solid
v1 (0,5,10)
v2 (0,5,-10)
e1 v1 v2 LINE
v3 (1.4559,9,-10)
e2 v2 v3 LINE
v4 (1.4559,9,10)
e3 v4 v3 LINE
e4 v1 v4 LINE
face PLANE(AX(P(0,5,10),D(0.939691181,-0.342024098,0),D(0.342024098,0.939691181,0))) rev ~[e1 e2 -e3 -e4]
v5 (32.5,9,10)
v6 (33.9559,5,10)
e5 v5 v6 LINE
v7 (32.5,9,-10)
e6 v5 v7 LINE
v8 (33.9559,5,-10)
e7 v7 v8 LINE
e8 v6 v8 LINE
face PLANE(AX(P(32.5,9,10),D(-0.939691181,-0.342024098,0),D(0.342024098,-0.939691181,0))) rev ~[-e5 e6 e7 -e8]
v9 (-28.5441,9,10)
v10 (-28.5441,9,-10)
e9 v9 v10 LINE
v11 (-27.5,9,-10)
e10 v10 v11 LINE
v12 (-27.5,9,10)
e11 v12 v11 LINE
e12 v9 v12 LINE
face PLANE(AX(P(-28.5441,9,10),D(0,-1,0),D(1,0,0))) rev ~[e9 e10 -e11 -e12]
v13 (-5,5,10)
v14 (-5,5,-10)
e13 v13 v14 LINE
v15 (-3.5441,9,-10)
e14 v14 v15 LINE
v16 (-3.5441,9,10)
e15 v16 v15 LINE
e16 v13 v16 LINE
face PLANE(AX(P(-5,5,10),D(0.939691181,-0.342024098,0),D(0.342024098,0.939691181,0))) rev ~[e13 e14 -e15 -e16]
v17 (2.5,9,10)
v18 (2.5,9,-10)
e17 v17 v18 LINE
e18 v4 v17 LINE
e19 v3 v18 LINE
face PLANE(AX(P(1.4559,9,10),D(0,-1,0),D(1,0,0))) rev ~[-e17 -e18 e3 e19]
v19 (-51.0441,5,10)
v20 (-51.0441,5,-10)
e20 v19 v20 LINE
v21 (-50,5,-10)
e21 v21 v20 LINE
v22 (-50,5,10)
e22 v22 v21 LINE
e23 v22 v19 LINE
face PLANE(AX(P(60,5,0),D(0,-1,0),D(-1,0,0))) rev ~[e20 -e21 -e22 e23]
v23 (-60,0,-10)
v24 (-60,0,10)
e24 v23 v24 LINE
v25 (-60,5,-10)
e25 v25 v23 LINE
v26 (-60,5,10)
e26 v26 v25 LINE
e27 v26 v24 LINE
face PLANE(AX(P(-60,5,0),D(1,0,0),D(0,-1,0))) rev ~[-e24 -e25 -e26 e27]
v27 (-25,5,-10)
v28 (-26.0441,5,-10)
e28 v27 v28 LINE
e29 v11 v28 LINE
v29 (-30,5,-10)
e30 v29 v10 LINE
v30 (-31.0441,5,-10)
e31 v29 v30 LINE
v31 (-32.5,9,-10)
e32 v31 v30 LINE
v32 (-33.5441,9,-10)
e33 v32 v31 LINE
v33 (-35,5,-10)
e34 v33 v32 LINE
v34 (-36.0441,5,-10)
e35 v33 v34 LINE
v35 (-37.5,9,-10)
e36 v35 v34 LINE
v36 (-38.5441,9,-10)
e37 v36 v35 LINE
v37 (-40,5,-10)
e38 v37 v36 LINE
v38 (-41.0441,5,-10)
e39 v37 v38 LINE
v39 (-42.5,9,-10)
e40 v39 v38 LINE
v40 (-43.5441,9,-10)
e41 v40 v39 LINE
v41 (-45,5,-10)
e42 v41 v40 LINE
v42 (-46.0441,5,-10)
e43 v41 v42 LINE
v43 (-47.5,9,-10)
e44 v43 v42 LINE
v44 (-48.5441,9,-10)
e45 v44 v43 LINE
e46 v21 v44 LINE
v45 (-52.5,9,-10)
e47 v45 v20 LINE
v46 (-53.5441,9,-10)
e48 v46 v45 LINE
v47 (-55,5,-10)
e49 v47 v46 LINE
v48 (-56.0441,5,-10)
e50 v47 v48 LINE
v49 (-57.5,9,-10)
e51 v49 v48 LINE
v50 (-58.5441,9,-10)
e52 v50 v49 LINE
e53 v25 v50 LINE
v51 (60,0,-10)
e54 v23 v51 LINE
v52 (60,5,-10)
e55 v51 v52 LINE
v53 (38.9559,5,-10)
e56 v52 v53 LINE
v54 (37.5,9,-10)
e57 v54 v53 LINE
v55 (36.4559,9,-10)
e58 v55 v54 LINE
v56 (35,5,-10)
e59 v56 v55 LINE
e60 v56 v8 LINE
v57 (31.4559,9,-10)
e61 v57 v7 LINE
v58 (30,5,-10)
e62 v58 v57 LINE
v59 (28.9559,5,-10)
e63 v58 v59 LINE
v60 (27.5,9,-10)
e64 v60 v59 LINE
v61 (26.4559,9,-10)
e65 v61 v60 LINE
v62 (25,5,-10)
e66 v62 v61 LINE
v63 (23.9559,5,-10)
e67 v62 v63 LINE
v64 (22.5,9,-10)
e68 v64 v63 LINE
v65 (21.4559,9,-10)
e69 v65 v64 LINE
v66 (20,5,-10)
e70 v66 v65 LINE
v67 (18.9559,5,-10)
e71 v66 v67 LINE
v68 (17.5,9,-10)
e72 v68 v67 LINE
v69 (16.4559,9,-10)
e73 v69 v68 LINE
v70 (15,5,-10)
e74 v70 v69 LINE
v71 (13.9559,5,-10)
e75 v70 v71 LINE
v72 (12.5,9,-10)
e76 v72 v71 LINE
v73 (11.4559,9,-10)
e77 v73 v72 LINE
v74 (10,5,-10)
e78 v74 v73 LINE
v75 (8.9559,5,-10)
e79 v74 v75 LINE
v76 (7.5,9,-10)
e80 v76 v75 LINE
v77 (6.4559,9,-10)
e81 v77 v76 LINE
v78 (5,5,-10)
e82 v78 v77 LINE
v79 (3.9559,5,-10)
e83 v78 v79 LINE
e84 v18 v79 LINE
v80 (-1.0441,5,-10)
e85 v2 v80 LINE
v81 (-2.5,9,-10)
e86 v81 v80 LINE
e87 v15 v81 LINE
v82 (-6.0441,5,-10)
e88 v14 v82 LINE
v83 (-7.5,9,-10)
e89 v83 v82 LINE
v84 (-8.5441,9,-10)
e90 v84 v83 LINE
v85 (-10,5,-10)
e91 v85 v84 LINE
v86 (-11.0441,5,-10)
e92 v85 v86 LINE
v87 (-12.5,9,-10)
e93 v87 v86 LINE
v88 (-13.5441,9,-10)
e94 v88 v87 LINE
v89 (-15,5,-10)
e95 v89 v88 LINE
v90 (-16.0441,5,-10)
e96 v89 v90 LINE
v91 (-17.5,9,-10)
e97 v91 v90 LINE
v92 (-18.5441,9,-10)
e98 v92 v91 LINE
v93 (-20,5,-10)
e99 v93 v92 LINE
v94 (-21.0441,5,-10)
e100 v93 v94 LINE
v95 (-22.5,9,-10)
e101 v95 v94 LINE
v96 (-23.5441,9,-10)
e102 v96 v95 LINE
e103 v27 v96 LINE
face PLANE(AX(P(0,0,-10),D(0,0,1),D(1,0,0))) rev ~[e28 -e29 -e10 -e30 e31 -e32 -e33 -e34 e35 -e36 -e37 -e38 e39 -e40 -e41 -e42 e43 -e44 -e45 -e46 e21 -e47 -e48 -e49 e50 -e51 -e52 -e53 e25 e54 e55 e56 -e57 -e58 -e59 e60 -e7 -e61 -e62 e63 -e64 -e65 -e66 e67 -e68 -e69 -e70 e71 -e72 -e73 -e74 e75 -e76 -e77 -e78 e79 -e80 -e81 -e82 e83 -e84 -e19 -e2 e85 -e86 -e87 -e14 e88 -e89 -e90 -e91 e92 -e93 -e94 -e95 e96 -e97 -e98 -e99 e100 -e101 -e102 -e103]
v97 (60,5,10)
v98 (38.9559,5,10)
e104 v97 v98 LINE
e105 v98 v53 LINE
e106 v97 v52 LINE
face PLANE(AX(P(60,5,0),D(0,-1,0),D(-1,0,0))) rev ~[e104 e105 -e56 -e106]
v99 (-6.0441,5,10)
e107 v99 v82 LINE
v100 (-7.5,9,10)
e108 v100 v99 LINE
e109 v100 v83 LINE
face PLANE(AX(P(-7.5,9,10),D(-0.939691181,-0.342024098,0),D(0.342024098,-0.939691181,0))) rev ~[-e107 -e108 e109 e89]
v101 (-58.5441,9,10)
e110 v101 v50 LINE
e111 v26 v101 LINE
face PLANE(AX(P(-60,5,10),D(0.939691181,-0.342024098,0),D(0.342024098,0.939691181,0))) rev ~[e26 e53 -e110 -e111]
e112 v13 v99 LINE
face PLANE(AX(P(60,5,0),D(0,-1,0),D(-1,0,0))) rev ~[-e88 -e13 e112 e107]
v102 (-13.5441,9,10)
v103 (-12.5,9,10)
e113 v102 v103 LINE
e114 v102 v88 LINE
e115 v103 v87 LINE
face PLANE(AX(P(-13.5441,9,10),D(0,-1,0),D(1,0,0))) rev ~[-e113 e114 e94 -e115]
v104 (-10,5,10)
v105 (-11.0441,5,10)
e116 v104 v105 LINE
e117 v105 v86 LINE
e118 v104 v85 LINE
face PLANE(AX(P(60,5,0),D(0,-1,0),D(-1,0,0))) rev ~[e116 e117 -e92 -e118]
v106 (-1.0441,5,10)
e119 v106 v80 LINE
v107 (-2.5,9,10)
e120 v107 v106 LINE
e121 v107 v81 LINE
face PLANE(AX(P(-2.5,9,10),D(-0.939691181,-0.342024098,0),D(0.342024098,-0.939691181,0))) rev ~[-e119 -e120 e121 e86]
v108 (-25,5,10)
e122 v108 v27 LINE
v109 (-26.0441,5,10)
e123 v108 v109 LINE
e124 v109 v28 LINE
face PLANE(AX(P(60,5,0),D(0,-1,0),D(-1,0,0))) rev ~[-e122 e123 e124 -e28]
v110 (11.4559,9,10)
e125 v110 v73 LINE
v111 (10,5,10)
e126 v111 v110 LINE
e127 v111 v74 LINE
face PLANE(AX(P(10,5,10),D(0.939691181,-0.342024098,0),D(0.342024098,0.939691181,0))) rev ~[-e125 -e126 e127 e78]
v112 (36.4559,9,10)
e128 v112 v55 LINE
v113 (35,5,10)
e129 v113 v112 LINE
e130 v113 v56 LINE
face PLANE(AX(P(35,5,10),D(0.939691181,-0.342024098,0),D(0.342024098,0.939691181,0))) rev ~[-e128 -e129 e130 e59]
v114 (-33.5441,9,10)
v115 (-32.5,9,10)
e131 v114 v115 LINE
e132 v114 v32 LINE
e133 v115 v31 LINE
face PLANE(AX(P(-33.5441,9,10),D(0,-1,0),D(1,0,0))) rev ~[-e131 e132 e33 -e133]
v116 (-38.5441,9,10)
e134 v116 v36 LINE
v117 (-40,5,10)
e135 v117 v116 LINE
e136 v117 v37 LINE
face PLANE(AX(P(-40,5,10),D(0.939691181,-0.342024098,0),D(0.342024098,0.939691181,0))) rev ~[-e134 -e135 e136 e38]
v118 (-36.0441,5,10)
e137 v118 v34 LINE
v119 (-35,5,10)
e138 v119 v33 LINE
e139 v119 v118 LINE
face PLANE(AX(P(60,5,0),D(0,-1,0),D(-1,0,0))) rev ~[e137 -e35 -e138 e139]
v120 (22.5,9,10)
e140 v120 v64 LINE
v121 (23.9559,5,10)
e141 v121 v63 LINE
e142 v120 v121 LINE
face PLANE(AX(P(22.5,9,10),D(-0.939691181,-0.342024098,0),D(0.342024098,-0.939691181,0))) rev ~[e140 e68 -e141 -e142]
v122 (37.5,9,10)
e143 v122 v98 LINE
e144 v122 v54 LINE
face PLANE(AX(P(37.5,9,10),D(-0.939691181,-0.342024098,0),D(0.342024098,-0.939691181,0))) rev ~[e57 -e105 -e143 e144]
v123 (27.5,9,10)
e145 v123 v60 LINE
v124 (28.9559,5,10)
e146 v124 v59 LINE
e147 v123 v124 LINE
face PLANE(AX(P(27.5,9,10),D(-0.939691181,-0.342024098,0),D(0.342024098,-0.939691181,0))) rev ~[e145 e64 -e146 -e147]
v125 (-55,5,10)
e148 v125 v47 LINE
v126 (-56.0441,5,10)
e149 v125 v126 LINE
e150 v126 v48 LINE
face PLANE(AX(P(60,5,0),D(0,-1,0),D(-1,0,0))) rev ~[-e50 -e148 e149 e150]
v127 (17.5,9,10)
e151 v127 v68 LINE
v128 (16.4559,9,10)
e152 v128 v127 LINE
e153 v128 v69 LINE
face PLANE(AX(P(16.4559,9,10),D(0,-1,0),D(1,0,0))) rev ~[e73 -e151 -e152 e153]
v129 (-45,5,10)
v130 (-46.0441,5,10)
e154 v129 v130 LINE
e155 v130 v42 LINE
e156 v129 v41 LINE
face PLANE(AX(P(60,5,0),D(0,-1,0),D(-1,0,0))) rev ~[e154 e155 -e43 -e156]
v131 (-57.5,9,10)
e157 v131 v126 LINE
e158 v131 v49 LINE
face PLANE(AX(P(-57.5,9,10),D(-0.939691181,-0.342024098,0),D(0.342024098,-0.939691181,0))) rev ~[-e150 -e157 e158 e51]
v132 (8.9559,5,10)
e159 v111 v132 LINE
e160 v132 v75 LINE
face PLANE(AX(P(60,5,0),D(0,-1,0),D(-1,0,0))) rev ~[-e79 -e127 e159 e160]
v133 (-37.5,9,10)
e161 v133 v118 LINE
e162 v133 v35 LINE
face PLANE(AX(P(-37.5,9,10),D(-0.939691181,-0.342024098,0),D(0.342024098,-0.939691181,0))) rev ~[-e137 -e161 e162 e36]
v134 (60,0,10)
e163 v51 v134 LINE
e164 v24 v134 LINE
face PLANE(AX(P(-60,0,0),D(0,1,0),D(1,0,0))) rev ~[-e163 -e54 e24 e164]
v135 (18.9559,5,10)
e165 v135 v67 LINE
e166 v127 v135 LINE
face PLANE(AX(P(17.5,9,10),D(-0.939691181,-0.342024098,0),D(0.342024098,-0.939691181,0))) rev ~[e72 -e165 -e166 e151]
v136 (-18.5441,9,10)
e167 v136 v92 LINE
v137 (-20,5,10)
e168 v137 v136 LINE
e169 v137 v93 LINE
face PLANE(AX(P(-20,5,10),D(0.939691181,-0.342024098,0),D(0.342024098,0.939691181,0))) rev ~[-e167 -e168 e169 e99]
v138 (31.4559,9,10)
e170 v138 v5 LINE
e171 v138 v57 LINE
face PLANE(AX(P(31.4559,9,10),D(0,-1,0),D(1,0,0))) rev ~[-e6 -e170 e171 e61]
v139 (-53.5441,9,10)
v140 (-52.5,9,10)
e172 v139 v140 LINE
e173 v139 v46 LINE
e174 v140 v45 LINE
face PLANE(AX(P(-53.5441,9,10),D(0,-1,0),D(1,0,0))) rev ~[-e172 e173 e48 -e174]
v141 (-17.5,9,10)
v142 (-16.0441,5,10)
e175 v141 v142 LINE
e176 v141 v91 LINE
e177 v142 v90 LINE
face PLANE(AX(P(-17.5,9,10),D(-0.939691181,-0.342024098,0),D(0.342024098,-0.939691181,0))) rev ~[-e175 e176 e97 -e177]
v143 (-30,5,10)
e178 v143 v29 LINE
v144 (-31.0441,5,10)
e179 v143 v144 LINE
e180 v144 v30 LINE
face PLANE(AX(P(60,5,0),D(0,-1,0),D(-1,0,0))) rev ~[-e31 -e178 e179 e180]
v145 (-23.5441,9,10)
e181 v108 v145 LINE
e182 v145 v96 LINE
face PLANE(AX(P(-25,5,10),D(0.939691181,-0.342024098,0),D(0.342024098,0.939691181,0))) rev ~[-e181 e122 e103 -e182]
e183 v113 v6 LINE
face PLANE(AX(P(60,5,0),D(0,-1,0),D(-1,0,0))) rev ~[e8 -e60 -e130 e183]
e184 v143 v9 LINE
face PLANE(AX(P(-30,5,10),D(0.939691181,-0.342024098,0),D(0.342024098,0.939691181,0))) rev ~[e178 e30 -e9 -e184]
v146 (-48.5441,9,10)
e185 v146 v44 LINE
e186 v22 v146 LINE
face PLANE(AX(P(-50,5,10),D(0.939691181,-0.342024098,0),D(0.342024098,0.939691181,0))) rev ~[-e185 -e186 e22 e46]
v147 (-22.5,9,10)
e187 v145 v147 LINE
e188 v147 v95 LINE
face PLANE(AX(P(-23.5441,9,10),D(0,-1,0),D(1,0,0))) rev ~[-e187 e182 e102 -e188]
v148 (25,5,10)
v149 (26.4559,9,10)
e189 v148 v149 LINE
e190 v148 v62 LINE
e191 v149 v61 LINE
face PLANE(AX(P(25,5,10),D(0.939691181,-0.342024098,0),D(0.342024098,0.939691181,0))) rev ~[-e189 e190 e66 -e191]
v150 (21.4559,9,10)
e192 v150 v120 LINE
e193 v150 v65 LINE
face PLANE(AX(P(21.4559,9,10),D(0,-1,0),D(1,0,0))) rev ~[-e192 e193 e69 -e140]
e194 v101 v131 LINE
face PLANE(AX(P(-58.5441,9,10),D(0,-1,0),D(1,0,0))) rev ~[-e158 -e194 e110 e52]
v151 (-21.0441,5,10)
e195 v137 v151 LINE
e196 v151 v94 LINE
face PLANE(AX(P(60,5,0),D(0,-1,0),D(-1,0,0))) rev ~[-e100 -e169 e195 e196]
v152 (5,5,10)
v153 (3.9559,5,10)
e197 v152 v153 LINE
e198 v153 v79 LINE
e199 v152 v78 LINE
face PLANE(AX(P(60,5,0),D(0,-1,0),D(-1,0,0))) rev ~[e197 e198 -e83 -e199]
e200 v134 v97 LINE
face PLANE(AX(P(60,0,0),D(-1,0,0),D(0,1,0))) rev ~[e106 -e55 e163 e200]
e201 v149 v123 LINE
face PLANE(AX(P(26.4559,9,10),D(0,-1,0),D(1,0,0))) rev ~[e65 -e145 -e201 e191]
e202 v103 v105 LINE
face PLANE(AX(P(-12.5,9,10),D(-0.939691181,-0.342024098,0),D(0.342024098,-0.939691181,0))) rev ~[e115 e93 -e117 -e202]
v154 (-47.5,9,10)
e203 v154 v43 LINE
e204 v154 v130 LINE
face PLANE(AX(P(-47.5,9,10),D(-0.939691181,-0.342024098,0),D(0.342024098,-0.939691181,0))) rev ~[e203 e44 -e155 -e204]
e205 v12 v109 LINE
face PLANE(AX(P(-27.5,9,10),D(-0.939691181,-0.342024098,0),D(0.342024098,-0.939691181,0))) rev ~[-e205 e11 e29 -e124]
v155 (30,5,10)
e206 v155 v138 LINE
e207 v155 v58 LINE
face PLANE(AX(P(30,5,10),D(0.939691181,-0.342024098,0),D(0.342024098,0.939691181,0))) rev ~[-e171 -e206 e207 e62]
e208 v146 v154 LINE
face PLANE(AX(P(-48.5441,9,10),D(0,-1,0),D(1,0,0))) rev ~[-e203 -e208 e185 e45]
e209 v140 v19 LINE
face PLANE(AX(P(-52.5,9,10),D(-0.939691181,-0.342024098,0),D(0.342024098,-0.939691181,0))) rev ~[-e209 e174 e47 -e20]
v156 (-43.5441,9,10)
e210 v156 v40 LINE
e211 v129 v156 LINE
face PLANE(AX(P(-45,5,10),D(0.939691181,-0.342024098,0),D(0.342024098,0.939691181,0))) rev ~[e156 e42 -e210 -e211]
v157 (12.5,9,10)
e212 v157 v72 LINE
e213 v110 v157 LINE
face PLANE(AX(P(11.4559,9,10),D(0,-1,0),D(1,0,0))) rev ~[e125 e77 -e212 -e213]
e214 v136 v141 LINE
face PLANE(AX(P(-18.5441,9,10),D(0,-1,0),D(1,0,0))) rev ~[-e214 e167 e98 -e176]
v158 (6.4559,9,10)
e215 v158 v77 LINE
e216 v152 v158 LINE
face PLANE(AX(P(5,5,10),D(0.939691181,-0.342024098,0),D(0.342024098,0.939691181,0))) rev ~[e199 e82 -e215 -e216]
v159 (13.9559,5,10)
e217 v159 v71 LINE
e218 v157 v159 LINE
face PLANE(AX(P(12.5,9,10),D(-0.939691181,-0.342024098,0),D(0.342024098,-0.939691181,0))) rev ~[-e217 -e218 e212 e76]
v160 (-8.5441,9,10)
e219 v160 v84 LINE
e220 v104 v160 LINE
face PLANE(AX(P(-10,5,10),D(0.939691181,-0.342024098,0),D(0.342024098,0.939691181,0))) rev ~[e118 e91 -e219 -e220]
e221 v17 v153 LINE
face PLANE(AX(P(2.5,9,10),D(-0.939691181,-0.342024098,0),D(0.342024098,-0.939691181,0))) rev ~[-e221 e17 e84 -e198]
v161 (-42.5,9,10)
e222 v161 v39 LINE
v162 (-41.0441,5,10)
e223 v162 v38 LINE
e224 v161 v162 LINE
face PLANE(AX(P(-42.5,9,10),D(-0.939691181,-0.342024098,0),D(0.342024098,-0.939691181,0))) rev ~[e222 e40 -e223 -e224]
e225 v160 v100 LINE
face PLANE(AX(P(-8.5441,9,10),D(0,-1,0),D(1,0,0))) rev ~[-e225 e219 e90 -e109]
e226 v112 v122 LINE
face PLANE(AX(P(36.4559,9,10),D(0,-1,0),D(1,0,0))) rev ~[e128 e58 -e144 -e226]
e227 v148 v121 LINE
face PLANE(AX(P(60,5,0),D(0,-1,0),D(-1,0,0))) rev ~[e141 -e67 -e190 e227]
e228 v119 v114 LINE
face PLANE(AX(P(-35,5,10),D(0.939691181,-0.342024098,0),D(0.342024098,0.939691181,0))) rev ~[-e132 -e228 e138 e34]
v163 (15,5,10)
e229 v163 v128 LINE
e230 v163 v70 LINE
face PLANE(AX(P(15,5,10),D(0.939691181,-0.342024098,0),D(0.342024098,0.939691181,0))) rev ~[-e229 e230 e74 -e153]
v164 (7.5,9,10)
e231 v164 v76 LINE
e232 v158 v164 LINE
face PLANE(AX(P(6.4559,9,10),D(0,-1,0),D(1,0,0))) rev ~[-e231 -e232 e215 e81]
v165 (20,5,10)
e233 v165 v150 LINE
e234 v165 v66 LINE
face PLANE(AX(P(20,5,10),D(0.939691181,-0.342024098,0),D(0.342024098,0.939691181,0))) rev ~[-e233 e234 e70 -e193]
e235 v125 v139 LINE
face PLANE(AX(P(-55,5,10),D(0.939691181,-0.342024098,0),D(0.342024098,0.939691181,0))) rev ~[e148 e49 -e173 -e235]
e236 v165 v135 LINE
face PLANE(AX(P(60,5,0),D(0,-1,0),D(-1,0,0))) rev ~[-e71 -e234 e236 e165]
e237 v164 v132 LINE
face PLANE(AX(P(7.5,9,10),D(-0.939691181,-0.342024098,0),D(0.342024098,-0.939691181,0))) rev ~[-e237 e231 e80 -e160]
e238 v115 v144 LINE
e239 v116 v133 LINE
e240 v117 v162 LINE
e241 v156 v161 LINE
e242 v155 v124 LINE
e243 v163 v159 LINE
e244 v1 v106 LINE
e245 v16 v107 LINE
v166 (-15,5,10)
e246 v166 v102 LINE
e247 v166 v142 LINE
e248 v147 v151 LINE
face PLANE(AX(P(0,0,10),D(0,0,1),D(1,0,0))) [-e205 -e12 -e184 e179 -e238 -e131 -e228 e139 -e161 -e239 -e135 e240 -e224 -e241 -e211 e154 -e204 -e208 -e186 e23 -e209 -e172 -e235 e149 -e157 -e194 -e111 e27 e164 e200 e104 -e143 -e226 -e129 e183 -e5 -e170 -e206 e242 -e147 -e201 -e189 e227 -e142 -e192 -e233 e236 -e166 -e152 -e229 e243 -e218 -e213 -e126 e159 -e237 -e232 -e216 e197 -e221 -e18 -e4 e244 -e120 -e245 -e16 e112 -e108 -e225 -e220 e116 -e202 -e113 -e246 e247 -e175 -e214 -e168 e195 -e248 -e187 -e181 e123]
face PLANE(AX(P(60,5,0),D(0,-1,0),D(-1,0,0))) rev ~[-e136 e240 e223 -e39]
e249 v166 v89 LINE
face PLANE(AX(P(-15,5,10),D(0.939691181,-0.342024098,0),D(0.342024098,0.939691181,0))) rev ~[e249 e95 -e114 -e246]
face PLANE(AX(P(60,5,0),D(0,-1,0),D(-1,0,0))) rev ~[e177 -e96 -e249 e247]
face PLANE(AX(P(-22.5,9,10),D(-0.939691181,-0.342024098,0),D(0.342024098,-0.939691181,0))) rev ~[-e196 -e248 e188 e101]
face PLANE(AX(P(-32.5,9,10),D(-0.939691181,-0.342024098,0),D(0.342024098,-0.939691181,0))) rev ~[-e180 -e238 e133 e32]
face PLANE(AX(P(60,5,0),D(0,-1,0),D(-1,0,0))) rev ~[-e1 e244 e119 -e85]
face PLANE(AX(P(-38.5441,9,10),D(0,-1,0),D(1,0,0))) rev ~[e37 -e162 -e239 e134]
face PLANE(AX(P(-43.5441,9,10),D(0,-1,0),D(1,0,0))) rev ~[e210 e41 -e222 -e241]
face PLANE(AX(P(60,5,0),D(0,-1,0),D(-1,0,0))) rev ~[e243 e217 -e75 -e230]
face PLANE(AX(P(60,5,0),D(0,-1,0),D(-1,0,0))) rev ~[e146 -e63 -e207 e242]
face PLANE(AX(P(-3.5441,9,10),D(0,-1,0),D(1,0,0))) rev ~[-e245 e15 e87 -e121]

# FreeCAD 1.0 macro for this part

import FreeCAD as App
import Part
import Sketcher

V = App.Vector
Q = App.Units.Quantity

doc = App.newDocument("Part")
body = doc.addObject("PartDesign::Body", "Body")

# Sketch on XY plane
sketch1 = body.newObject("Sketcher::SketchObject", "Sketch")
sketch1.AttachmentSupport = (doc.getObject("XY_Plane"), [""])
sketch1.MapMode = "FlatFace"
sketch1.addGeometry(Part.LineSegment(V(-60, 5, 0), V(-60, 0, 0)), False)
sketch1.addGeometry(Part.LineSegment(V(-60, 0, 0), V(60, 0, 0)), False)
sketch1.addGeometry(Part.LineSegment(V(60, 0, 0), V(60, 5, 0)), False)
sketch1.addGeometry(Part.LineSegment(V(60, 5, 0), V(-60, 5, 0)), False)
sketch1.addConstraint(Sketcher.Constraint("Coincident", 0, 2, 1, 1))
sketch1.addConstraint(Sketcher.Constraint("Coincident", 1, 2, 2, 1))
sketch1.addConstraint(Sketcher.Constraint("Coincident", 2, 2, 3, 1))
sketch1.addConstraint(Sketcher.Constraint("Coincident", 3, 2, 0, 1))
sketch1.addConstraint(Sketcher.Constraint("Vertical", 0))
sketch1.addConstraint(Sketcher.Constraint("Horizontal", 1))
sketch1.addConstraint(Sketcher.Constraint("Vertical", 2))
sketch1.addConstraint(Sketcher.Constraint("Horizontal", 3))
sketch1.addConstraint(Sketcher.Constraint("Symmetric", 0, 2, 1, 2, -1, 1))
sketch1.addConstraint(Sketcher.Constraint("DistanceX", 1, 1, 1, 2, 120.0))
sketch1.addConstraint(Sketcher.Constraint("DistanceY", 0, 2, 0, 1, 5.0))
pad1 = body.newObject("PartDesign::Pad", "Pad")
pad1.Profile = sketch1
pad1.Length = 20
pad1.Midplane = True

# Sketch on XY plane
sketch2 = body.newObject("Sketcher::SketchObject", "Sketch001")
sketch2.AttachmentSupport = (doc.getObject("XY_Plane"), [""])
sketch2.MapMode = "FlatFace"
sketch2.AttachmentOffset = App.Placement(V(0, 0, 10), App.Rotation())
sketch2.addGeometry(Part.LineSegment(V(-58.5, 9, 0), V(-60, 5, 0)), False)
sketch2.addGeometry(Part.LineSegment(V(-60, 5, 0), V(-56, 5, 0)), False)
sketch2.addGeometry(Part.LineSegment(V(-56, 5, 0), V(-57.5, 9, 0)), False)
sketch2.addGeometry(Part.LineSegment(V(-57.5, 9, 0), V(-58.5, 9, 0)), False)
sketch2.addConstraint(Sketcher.Constraint("Coincident", 0, 2, 1, 1))
sketch2.addConstraint(Sketcher.Constraint("Coincident", 1, 2, 2, 1))
sketch2.addConstraint(Sketcher.Constraint("Coincident", 2, 2, 3, 1))
sketch2.addConstraint(Sketcher.Constraint("Coincident", 3, 2, 0, 1))
sketch2.addConstraint(Sketcher.Constraint("Horizontal", 1))
sketch2.addConstraint(Sketcher.Constraint("Horizontal", 3))
sketch2.addConstraint(Sketcher.Constraint("Equal", 0, 2))
sketch2.addConstraint(Sketcher.Constraint("DistanceY", 1, 2, 2, 2, 4.0))
sketch2.addConstraint(Sketcher.Constraint("DistanceX", 0, 2, 2, 2, 2.5))
sketch2.addConstraint(Sketcher.Constraint("Angle", 0, Q("-110.0002 deg")))
sketch2.addConstraint(Sketcher.Constraint("DistanceX", 0, 2, -1, 1, 60.0))
sketch2.addConstraint(Sketcher.Constraint("DistanceY", -1, 1, 0, 2, 5.0))
pad2 = body.newObject("PartDesign::Pad", "Pad001")
pad2.Profile = sketch2
pad2.Length = 20
pad2.Reversed = True
doc.recompute()

linearpattern = body.newObject("PartDesign::LinearPattern", "LinearPattern")
linearpattern.Originals = [pad2]
linearpattern.Direction = (doc.getObject("X_Axis"), [""])
linearpattern.Mode = "offset"
linearpattern.Offset = 5
linearpattern.Occurrences = 20
body.Tip = linearpattern

doc.recompute()
